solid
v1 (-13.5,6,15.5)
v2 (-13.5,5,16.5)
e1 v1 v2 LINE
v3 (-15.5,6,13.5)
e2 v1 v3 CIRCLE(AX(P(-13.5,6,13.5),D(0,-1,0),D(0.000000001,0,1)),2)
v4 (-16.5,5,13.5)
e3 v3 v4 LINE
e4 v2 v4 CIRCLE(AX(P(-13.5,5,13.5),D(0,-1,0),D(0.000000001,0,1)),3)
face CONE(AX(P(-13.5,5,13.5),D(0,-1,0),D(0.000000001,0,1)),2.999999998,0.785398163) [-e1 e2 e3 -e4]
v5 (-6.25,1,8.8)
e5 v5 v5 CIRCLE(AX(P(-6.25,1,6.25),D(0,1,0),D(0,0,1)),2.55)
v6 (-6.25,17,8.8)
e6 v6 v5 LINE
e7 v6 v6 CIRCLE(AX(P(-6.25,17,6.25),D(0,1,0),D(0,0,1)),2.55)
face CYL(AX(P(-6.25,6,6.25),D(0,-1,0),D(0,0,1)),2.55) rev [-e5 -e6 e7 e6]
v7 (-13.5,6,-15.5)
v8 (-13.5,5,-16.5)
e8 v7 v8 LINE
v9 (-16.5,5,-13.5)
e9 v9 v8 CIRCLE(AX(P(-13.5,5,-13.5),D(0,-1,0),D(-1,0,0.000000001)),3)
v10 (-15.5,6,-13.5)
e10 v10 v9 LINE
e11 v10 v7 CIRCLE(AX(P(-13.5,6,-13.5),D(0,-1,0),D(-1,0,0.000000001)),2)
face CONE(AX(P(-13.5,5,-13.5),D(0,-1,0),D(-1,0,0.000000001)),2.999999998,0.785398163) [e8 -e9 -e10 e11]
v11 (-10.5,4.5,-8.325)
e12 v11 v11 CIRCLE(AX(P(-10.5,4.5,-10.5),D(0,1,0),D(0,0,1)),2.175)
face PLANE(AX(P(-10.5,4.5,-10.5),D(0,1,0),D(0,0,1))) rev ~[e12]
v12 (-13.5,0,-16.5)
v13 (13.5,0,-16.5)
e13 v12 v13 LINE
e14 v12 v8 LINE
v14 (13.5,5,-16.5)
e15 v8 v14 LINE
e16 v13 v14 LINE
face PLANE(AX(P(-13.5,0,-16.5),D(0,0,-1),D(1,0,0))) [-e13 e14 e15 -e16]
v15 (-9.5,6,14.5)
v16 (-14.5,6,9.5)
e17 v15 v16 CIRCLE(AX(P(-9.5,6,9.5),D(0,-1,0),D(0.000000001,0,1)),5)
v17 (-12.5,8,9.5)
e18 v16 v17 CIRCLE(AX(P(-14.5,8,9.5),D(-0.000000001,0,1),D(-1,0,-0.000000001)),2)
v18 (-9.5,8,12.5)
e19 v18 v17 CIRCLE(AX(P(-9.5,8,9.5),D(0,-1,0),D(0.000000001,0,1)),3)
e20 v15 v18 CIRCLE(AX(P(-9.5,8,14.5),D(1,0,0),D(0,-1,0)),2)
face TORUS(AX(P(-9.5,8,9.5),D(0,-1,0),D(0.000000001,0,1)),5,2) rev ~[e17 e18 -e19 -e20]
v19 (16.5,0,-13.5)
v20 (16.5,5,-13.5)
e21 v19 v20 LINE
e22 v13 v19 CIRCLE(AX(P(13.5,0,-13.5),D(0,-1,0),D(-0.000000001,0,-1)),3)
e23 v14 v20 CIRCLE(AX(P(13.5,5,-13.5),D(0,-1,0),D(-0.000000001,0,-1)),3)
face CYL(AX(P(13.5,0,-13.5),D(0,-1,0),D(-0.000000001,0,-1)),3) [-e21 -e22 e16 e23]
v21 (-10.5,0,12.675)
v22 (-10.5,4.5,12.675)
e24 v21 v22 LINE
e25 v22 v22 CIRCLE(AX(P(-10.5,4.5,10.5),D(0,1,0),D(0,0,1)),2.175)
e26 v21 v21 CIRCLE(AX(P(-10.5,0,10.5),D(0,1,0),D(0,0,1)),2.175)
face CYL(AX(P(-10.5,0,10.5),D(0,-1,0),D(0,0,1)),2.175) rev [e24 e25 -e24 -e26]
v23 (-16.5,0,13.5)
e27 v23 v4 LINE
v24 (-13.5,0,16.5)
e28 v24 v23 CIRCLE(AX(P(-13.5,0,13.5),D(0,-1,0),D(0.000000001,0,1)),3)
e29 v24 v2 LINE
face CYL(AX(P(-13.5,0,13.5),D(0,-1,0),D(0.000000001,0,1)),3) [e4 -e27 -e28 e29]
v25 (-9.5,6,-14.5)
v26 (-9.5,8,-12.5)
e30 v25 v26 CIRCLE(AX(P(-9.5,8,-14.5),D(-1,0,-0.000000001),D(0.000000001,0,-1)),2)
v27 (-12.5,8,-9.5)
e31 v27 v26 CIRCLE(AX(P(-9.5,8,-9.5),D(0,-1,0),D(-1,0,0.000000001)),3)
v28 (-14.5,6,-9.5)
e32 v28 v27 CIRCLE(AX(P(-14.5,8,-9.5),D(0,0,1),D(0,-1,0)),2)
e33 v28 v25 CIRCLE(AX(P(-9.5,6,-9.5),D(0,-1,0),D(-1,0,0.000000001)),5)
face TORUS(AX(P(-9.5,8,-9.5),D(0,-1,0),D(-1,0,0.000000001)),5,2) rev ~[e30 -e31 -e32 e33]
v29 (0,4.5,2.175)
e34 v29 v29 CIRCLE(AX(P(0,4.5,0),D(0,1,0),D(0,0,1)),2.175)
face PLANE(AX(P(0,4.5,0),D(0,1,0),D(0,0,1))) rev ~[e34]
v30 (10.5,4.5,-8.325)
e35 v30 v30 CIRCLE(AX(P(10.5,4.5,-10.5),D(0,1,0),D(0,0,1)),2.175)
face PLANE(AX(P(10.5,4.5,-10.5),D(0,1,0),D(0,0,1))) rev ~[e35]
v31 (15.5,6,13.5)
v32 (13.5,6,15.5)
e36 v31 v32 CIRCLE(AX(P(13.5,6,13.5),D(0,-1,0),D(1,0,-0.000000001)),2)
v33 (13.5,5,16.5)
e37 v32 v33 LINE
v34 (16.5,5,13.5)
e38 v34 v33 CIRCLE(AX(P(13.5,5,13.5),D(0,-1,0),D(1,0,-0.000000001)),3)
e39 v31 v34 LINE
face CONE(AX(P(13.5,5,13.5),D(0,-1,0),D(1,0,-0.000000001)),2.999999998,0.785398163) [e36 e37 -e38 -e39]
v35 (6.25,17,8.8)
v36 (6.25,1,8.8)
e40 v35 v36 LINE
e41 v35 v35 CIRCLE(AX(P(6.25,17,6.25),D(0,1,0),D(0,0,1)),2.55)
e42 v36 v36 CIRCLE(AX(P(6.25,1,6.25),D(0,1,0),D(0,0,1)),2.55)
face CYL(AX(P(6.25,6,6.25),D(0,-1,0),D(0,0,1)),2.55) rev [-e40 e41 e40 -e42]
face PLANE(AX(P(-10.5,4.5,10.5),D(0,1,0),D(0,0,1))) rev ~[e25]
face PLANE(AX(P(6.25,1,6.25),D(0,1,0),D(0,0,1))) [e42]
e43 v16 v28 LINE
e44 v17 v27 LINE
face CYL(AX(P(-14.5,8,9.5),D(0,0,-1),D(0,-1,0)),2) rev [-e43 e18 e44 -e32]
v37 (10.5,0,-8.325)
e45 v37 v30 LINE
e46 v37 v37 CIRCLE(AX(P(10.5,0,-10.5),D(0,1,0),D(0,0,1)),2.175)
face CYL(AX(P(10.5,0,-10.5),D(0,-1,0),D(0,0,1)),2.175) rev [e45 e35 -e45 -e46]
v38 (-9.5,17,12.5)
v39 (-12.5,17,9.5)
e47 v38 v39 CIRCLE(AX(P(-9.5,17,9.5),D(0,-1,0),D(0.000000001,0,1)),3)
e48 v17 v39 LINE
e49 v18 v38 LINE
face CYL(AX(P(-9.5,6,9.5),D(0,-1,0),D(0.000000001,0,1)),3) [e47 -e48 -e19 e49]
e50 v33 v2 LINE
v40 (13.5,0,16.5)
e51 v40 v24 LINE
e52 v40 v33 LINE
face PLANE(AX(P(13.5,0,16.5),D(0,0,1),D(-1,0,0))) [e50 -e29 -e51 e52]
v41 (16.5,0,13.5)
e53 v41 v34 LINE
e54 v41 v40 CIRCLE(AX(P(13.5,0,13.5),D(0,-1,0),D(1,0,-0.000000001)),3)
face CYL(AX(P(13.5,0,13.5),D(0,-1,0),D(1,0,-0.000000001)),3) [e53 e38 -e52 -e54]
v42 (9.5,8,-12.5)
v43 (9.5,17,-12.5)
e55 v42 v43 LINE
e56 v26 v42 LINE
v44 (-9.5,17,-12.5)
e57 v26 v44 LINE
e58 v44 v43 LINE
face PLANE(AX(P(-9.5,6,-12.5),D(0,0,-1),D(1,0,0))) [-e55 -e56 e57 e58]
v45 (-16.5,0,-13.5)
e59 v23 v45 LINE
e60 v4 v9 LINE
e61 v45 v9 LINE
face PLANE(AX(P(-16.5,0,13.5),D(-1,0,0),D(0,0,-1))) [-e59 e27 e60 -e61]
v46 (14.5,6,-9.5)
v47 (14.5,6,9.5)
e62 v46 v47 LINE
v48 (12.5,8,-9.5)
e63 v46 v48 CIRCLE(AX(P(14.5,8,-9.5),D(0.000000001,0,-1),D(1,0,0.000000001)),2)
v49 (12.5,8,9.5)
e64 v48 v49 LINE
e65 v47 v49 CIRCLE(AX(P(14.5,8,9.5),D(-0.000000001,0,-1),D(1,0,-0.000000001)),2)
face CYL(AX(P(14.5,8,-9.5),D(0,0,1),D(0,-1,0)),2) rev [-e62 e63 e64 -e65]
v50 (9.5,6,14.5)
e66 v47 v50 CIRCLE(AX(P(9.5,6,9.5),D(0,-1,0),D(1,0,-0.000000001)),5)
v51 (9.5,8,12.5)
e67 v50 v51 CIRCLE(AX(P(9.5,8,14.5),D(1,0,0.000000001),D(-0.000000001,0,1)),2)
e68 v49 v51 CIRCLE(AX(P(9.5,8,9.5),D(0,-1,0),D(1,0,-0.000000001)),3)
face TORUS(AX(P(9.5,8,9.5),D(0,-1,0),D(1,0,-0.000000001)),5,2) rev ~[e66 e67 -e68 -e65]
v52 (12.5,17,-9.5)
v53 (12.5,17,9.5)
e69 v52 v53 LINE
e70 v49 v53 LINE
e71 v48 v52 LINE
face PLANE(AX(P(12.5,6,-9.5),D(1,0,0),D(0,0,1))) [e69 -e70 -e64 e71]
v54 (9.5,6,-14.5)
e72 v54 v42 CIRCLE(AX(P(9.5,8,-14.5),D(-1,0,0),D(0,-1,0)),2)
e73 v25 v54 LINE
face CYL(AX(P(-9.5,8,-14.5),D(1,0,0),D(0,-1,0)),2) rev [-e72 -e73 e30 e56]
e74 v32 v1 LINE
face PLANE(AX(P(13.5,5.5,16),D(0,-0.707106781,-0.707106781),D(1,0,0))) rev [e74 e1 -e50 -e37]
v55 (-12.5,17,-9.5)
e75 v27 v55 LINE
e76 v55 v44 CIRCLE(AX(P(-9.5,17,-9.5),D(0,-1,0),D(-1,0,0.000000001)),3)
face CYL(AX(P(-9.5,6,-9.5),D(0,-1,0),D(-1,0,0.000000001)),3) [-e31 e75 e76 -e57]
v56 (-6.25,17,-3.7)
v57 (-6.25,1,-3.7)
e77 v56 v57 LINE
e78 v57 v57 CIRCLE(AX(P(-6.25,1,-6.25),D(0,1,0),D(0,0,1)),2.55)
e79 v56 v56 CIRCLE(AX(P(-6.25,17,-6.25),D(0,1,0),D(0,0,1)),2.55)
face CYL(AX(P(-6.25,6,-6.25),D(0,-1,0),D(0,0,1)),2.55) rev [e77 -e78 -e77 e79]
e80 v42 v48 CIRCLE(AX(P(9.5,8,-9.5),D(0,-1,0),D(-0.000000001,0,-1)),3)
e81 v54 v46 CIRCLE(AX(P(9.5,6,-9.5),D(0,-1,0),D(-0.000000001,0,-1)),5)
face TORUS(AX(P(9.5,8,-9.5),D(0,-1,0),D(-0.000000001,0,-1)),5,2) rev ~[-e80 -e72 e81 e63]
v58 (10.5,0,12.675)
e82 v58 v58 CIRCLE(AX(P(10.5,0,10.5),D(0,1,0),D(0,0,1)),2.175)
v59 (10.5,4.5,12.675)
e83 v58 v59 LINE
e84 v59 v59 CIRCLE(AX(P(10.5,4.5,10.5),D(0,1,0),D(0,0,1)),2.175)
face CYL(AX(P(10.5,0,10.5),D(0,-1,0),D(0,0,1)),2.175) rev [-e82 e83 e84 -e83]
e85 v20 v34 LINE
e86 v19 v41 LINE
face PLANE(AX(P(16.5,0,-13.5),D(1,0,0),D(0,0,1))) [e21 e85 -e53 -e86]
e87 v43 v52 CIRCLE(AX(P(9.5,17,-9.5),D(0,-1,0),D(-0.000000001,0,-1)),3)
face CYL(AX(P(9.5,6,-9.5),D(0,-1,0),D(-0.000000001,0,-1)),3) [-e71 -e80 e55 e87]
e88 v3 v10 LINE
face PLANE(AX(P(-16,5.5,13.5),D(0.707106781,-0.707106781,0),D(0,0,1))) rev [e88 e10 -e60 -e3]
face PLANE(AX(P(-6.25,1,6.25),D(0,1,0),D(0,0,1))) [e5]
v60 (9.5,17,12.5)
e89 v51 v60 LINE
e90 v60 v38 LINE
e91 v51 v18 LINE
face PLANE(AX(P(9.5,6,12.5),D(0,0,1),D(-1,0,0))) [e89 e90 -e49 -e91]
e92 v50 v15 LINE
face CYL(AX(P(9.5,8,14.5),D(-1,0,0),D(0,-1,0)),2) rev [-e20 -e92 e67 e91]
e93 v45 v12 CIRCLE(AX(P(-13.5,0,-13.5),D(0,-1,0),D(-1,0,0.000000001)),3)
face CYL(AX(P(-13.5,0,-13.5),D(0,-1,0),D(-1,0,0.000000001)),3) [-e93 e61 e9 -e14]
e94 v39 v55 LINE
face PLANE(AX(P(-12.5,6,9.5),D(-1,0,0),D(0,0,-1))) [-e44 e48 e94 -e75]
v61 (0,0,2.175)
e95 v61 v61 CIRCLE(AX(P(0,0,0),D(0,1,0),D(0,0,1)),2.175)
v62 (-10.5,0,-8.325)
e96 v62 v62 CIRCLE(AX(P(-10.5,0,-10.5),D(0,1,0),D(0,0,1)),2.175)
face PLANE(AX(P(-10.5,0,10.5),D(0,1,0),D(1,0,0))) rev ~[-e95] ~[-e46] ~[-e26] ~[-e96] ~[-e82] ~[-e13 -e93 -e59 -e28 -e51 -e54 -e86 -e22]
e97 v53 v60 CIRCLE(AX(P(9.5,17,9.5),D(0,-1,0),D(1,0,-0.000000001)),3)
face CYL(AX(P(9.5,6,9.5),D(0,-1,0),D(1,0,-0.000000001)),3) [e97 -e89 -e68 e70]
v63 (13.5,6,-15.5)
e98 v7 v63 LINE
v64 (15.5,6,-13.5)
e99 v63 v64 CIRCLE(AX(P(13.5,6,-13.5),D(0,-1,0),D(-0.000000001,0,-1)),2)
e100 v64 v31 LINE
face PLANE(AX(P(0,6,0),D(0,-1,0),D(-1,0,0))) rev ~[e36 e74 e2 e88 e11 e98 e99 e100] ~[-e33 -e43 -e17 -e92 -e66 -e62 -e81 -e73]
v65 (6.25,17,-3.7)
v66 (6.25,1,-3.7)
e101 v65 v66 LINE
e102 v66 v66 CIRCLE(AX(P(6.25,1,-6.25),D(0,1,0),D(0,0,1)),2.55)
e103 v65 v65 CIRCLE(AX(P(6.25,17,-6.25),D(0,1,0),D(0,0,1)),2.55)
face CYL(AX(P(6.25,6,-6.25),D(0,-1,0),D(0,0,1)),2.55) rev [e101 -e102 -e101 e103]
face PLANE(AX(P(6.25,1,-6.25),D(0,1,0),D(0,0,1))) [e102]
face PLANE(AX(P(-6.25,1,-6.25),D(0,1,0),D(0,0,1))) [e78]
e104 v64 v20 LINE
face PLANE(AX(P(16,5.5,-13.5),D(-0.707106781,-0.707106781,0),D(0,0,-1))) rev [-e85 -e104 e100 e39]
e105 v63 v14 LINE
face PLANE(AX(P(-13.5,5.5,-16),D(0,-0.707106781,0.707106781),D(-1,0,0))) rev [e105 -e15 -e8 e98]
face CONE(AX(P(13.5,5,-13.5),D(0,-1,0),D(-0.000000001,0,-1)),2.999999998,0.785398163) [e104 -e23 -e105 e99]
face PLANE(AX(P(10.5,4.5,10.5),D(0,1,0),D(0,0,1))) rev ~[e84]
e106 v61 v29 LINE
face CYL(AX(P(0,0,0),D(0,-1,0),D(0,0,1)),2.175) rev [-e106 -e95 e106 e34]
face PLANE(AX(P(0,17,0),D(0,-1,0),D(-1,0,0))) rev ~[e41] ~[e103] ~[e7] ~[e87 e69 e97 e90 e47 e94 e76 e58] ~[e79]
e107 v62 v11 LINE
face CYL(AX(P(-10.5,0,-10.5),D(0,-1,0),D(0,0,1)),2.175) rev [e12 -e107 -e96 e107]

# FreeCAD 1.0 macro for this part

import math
import FreeCAD as App
import Part
import Sketcher

V = App.Vector
Q = App.Units.Quantity


def edges_at(feature, points):
    """Names of the edges that pass closest to the given points."""
    edges = feature.Shape.Edges
    near = lambda p: min(range(len(edges)), key=lambda i: edges[i].distToShape(Part.Vertex(*p))[0])
    return sorted({f"Edge{near(p) + 1}" for p in points})

doc = App.newDocument("Part")
body = doc.addObject("PartDesign::Body", "Body")

# Sketch on XZ plane
sketch1 = body.newObject("Sketcher::SketchObject", "Sketch")
sketch1.AttachmentSupport = (doc.getObject("XZ_Plane"), [""])
sketch1.MapMode = "FlatFace"
sketch1.addGeometry([
    Part.LineSegment(V(13.5, -16.5, 0), V(-13.5, -16.5, 0)),  # 0
    Part.ArcOfCircle(Part.Circle(V(-13.5, -13.5, 0), V(0, 0, 1), 3), math.radians(180), math.radians(270)),  # 1
    Part.LineSegment(V(-16.5, -13.5, 0), V(-16.5, 13.5, 0)),  # 2
    Part.ArcOfCircle(Part.Circle(V(-13.5, 13.5, 0), V(0, 0, 1), 3), math.radians(90), math.radians(180)),  # 3
    Part.LineSegment(V(-13.5, 16.5, 0), V(13.5, 16.5, 0)),  # 4
    Part.ArcOfCircle(Part.Circle(V(13.5, 13.5, 0), V(0, 0, 1), 3), math.radians(0), math.radians(90)),  # 5
    Part.LineSegment(V(16.5, 13.5, 0), V(16.5, -13.5, 0)),  # 6
    Part.ArcOfCircle(Part.Circle(V(13.5, -13.5, 0), V(0, 0, 1), 3), math.radians(-90), math.radians(0)),  # 7
], False)
sketch1.addConstraint([
    Sketcher.Constraint("Tangent", 0, 2, 1, 2),
    Sketcher.Constraint("Tangent", 1, 1, 2, 1),
    Sketcher.Constraint("Tangent", 2, 2, 3, 2),
    Sketcher.Constraint("Tangent", 3, 1, 4, 1),
    Sketcher.Constraint("Tangent", 4, 2, 5, 2),
    Sketcher.Constraint("Tangent", 5, 1, 6, 1),
    Sketcher.Constraint("Tangent", 6, 2, 7, 2),
    Sketcher.Constraint("Tangent", 7, 1, 0, 1),
    Sketcher.Constraint("Horizontal", 0),
    Sketcher.Constraint("Vertical", 2),
    Sketcher.Constraint("Horizontal", 4),
    Sketcher.Constraint("Vertical", 6),
    Sketcher.Constraint("Equal", 1, 3),
    Sketcher.Constraint("Equal", 3, 5),
    Sketcher.Constraint("Equal", 5, 7),
    Sketcher.Constraint("Symmetric", 1, 3, 5, 3, -1, 1),
    Sketcher.Constraint("Equal", 4, 2),
    Sketcher.Constraint("Radius", 1, Q("3 mm")),
    Sketcher.Constraint("DistanceX", 0, 2, 0, 1, Q("27 mm")),
])
pad1 = body.newObject("PartDesign::Pad", "Pad")
pad1.Profile = sketch1
pad1.Length = 6
pad1.Reversed = True

# Sketch on XZ plane
sketch2 = body.newObject("Sketcher::SketchObject", "Sketch001")
sketch2.AttachmentSupport = (doc.getObject("XZ_Plane"), [""])
sketch2.MapMode = "FlatFace"
sketch2.addGeometry([
    Part.Circle(V(10.5, 10.5, 0), V(0, 0, 1), 2.175),  # 0
    Part.Circle(V(10.5, -10.5, 0), V(0, 0, 1), 2.175),  # 1
    Part.Circle(V(-10.5, -10.5, 0), V(0, 0, 1), 2.175),  # 2
    Part.Circle(V(-10.5, 10.5, 0), V(0, 0, 1), 2.175),  # 3
    Part.Circle(V(0, 0, 0), V(0, 0, 1), 2.175),  # 4
], False)
sketch2.addConstraint([
    Sketcher.Constraint("Coincident", 4, 3, -1, 1),
    Sketcher.Constraint("Equal", 0, 1),
    Sketcher.Constraint("Equal", 1, 2),
    Sketcher.Constraint("Equal", 2, 3),
    Sketcher.Constraint("Equal", 3, 4),
    Sketcher.Constraint("Symmetric", 0, 3, 2, 3, -1, 1),
    Sketcher.Constraint("Symmetric", 1, 3, 3, 3, -1, 1),
    Sketcher.Constraint("Symmetric", 1, 3, 2, 3, -2),
    Sketcher.Constraint("Diameter", 0, Q("4.35 mm")),
    Sketcher.Constraint("DistanceY", 1, 3, 0, 3, Q("21 mm")),
    Sketcher.Constraint("DistanceX", 2, 3, 1, 3, Q("21 mm")),
])
pocket1 = body.newObject("PartDesign::Pocket", "Pocket")
pocket1.Profile = sketch2
pocket1.Length = 4.5

# Sketch on XZ plane
sketch3 = body.newObject("Sketcher::SketchObject", "Sketch002")
sketch3.AttachmentSupport = (doc.getObject("XZ_Plane"), [""])
sketch3.MapMode = "FlatFace"
sketch3.AttachmentOffset = App.Placement(V(0, 0, -6), App.Rotation())
sketch3.addGeometry([
    Part.LineSegment(V(9.5, -12.5, 0), V(-9.5, -12.5, 0)),  # 0
    Part.ArcOfCircle(Part.Circle(V(-9.5, -9.5, 0), V(0, 0, 1), 3), math.radians(180), math.radians(270)),  # 1
    Part.LineSegment(V(-12.5, -9.5, 0), V(-12.5, 9.5, 0)),  # 2
    Part.ArcOfCircle(Part.Circle(V(-9.5, 9.5, 0), V(0, 0, 1), 3), math.radians(90), math.radians(180)),  # 3
    Part.LineSegment(V(-9.5, 12.5, 0), V(9.5, 12.5, 0)),  # 4
    Part.ArcOfCircle(Part.Circle(V(9.5, 9.5, 0), V(0, 0, 1), 3), math.radians(0), math.radians(90)),  # 5
    Part.LineSegment(V(12.5, 9.5, 0), V(12.5, -9.5, 0)),  # 6
    Part.ArcOfCircle(Part.Circle(V(9.5, -9.5, 0), V(0, 0, 1), 3), math.radians(-90), math.radians(0)),  # 7
    Part.Circle(V(6.25, 6.25, 0), V(0, 0, 1), 2.55),  # 8
    Part.Circle(V(-6.25, 6.25, 0), V(0, 0, 1), 2.55),  # 9
    Part.Circle(V(6.25, -6.25, 0), V(0, 0, 1), 2.55),  # 10
    Part.Circle(V(-6.25, -6.25, 0), V(0, 0, 1), 2.55),  # 11
], False)
sketch3.addConstraint([
    Sketcher.Constraint("Tangent", 0, 2, 1, 2),
    Sketcher.Constraint("Tangent", 1, 1, 2, 1),
    Sketcher.Constraint("Tangent", 2, 2, 3, 2),
    Sketcher.Constraint("Tangent", 3, 1, 4, 1),
    Sketcher.Constraint("Tangent", 4, 2, 5, 2),
    Sketcher.Constraint("Tangent", 5, 1, 6, 1),
    Sketcher.Constraint("Tangent", 6, 2, 7, 2),
    Sketcher.Constraint("Tangent", 7, 1, 0, 1),
    Sketcher.Constraint("Horizontal", 0),
    Sketcher.Constraint("Vertical", 2),
    Sketcher.Constraint("Horizontal", 4),
    Sketcher.Constraint("Vertical", 6),
    Sketcher.Constraint("Equal", 1, 3),
    Sketcher.Constraint("Equal", 3, 5),
    Sketcher.Constraint("Equal", 5, 7),
    Sketcher.Constraint("Equal", 8, 9),
    Sketcher.Constraint("Equal", 9, 10),
    Sketcher.Constraint("Equal", 10, 11),
    Sketcher.Constraint("Symmetric", 1, 3, 5, 3, -1, 1),
    Sketcher.Constraint("Symmetric", 9, 3, 10, 3, -1, 1),
    Sketcher.Constraint("Symmetric", 8, 3, 11, 3, -1, 1),
    Sketcher.Constraint("Symmetric", 8, 3, 9, 3, -2),
    Sketcher.Constraint("Equal", 4, 2),
    Sketcher.Constraint("Radius", 1, Q("3 mm")),
    Sketcher.Constraint("Diameter", 8, Q("5.1 mm")),
    Sketcher.Constraint("DistanceX", 0, 2, 0, 1, Q("19 mm")),
    Sketcher.Constraint("DistanceX", 9, 3, 8, 3, Q("12.5 mm")),
    Sketcher.Constraint("DistanceY", 10, 3, 8, 3, Q("12.5 mm")),
])
pad2 = body.newObject("PartDesign::Pad", "Pad001")
pad2.Profile = sketch3
pad2.Length = 11
pad2.Reversed = True
doc.recompute()

fillet = body.newObject("PartDesign::Fillet", "Fillet")
fillet.Base = (pad2, edges_at(pad2, [
    (11.621, 6, 11.621),
    (12.5, 6, 0),
    (11.621, 6, -11.621),
    (0, 6, -12.5),
    (-11.621, 6, -11.621),
    (-12.5, 6, 0),
    (-11.621, 6, 11.621),
    (0, 6, 12.5),
]))
fillet.Radius = 2

# Sketch on XZ plane
sketch4 = body.newObject("Sketcher::SketchObject", "Sketch003")
sketch4.AttachmentSupport = (doc.getObject("XZ_Plane"), [""])
sketch4.MapMode = "FlatFace"
sketch4.AttachmentOffset = App.Placement(V(0, 0, -1), App.Rotation())
sketch4.addGeometry([
    Part.Circle(V(-6.25, -6.25, 0), V(0, 0, 1), 2.55),
    Part.Circle(V(6.25, -6.25, 0), V(0, 0, 1), 2.55),
    Part.Circle(V(6.25, 6.25, 0), V(0, 0, 1), 2.55),
    Part.Circle(V(-6.25, 6.25, 0), V(0, 0, 1), 2.55),
], False)
sketch4.addConstraint([
    Sketcher.Constraint("Equal", 0, 1),
    Sketcher.Constraint("Equal", 1, 2),
    Sketcher.Constraint("Equal", 2, 3),
    Sketcher.Constraint("Symmetric", 0, 3, 2, 3, -1, 1),
    Sketcher.Constraint("Symmetric", 1, 3, 3, 3, -1, 1),
    Sketcher.Constraint("Symmetric", 0, 3, 1, 3, -2),
    Sketcher.Constraint("Diameter", 0, Q("5.1 mm")),
    Sketcher.Constraint("DistanceX", 0, 3, 1, 3, Q("12.5 mm")),
    Sketcher.Constraint("DistanceY", 1, 3, 2, 3, Q("12.5 mm")),
])
pocket2 = body.newObject("PartDesign::Pocket", "Pocket001")
pocket2.Profile = sketch4
pocket2.Length = 5
doc.recompute()

chamfer = body.newObject("PartDesign::Chamfer", "Chamfer")
chamfer.Base = (pocket2, edges_at(pocket2, [
    (-16.5, 6, 0),
    (-15.621, 6, 15.621),
    (0, 6, 16.5),
    (15.621, 6, 15.621),
    (16.5, 6, 0),
    (15.621, 6, -15.621),
    (0, 6, -16.5),
    (-15.621, 6, -15.621),
]))
chamfer.Size = 1

doc.recompute()
